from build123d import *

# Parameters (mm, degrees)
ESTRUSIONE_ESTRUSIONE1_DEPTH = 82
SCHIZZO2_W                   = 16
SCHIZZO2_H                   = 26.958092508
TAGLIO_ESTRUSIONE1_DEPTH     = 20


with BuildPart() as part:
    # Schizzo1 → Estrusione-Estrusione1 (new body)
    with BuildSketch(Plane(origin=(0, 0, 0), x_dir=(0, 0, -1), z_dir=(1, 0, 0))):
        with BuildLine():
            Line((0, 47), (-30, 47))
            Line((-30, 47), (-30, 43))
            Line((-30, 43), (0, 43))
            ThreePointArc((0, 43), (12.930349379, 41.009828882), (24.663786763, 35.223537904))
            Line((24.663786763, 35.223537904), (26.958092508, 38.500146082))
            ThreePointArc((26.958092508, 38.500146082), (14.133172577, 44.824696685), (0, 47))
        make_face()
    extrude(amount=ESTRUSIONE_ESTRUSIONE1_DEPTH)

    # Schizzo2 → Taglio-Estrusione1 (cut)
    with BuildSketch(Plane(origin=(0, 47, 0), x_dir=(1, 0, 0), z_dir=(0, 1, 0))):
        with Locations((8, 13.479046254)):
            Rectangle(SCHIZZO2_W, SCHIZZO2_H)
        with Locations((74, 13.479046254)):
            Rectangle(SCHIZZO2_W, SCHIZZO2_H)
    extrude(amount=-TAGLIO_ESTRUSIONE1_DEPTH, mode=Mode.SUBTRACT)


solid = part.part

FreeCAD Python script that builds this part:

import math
import FreeCAD as App
import Part
import Sketcher
Q = App.Units.Quantity


def add_polygon(sketch, points):
    """Adds a closed chain of lines whose ends are joined by coincident constraints."""
    first, n = sketch.GeometryCount, len(points)
    for a, b in zip(points, points[1:] + points[:1]):
        sketch.addGeometry(Part.LineSegment(App.Vector(*a, 0), App.Vector(*b, 0)), False)
    for i in range(n):
        sketch.addConstraint(Sketcher.Constraint("Coincident", first + i, 2, first + (i + 1) % n, 1))

doc = App.newDocument("Part")
body = doc.addObject("PartDesign::Body", "Body")

# Sketch on YZ plane
sketch1 = body.newObject("Sketcher::SketchObject", "Sketch")
sketch1.AttachmentSupport = (doc.getObject("YZ_Plane"), [""])
sketch1.MapMode = "FlatFace"
sketch1.addGeometry([
    Part.LineSegment(App.Vector(47, 0, 0), App.Vector(47, 30, 0)),  # 0
    Part.LineSegment(App.Vector(47, 30, 0), App.Vector(43, 30, 0)),  # 1
    Part.LineSegment(App.Vector(43, 30, 0), App.Vector(43, 0, 0)),  # 2
    Part.ArcOfCircle(Part.Circle(App.Vector(0, 0, 0), App.Vector(0, 0, 1), 43), math.radians(-35), math.radians(0)),  # 3
    Part.LineSegment(App.Vector(35.2, -24.7, 0), App.Vector(38.5, -27, 0)),  # 4
    Part.ArcOfCircle(Part.Circle(App.Vector(0, 0, 0), App.Vector(0, 0, 1), 47), math.radians(-35), math.radians(0)),  # 5
], False)
sketch1.addConstraint([
    Sketcher.Constraint("Coincident", 0, 2, 1, 1),
    Sketcher.Constraint("Coincident", 1, 2, 2, 1),
    Sketcher.Constraint("Tangent", 2, 2, 3, 2),
    Sketcher.Constraint("Coincident", 3, 1, 4, 1),
    Sketcher.Constraint("Coincident", 4, 2, 5, 1),
    Sketcher.Constraint("Tangent", 5, 2, 0, 1),
    Sketcher.Constraint("Vertical", 0),
    Sketcher.Constraint("Horizontal", 1),
    Sketcher.Constraint("Vertical", 2),
    Sketcher.Constraint("Coincident", 3, 3, -1, 1),
    Sketcher.Constraint("Coincident", 5, 3, -1, 1),
    Sketcher.Constraint("Radius", 3, Q("43 mm")),
    Sketcher.Constraint("Radius", 5, Q("47 mm")),
    Sketcher.Constraint("DistanceY", 0, 1, 0, 2, Q("30 mm")),
    Sketcher.Constraint("Angle", 4, Q("-35 deg")),
    Sketcher.Constraint("DistanceX", -1, 1, 3, 1, Q("35.223538 mm")),
])
pad1 = body.newObject("PartDesign::Pad", "Pad")
pad1.Profile = sketch1
pad1.Length = 82

# Sketch on XZ plane
sketch2 = body.newObject("Sketcher::SketchObject", "Sketch001")
sketch2.AttachmentSupport = (doc.getObject("XZ_Plane"), [""])
sketch2.MapMode = "FlatFace"
sketch2.AttachmentOffset = App.Placement(App.Vector(0, 0, -47), App.Rotation())
add_polygon(sketch2, [(0, -27), (0, 0), (16, 0), (16, -27)])  # lines 0-3
add_polygon(sketch2, [(66, -27), (66, 0), (82, 0), (82, -27)])  # lines 4-7
sketch2.addConstraint([
    Sketcher.Constraint("Vertical", 0),
    Sketcher.Constraint("Horizontal", 1),
    Sketcher.Constraint("Vertical", 2),
    Sketcher.Constraint("Horizontal", 3),
    Sketcher.Constraint("Vertical", 4),
    Sketcher.Constraint("Horizontal", 5),
    Sketcher.Constraint("Vertical", 6),
    Sketcher.Constraint("Horizontal", 7),
    Sketcher.Constraint("Coincident", 0, 2, -1, 1),
    Sketcher.Constraint("PointOnObject", 4, 2, -1),
    Sketcher.Constraint("Horizontal", 3, 2, 6, 2),
    Sketcher.Constraint("Equal", 3, 5),
    Sketcher.Constraint("DistanceX", 1, 1, 1, 2, Q("16 mm")),
    Sketcher.Constraint("DistanceX", -1, 1, 4, 2, Q("66 mm")),
    Sketcher.Constraint("DistanceY", 0, 1, 0, 2, Q("26.958093 mm")),
])
pocket1 = body.newObject("PartDesign::Pocket", "Pocket")
pocket1.Profile = sketch2
pocket1.Length = 20
pocket1.Reversed = True

doc.recompute()
